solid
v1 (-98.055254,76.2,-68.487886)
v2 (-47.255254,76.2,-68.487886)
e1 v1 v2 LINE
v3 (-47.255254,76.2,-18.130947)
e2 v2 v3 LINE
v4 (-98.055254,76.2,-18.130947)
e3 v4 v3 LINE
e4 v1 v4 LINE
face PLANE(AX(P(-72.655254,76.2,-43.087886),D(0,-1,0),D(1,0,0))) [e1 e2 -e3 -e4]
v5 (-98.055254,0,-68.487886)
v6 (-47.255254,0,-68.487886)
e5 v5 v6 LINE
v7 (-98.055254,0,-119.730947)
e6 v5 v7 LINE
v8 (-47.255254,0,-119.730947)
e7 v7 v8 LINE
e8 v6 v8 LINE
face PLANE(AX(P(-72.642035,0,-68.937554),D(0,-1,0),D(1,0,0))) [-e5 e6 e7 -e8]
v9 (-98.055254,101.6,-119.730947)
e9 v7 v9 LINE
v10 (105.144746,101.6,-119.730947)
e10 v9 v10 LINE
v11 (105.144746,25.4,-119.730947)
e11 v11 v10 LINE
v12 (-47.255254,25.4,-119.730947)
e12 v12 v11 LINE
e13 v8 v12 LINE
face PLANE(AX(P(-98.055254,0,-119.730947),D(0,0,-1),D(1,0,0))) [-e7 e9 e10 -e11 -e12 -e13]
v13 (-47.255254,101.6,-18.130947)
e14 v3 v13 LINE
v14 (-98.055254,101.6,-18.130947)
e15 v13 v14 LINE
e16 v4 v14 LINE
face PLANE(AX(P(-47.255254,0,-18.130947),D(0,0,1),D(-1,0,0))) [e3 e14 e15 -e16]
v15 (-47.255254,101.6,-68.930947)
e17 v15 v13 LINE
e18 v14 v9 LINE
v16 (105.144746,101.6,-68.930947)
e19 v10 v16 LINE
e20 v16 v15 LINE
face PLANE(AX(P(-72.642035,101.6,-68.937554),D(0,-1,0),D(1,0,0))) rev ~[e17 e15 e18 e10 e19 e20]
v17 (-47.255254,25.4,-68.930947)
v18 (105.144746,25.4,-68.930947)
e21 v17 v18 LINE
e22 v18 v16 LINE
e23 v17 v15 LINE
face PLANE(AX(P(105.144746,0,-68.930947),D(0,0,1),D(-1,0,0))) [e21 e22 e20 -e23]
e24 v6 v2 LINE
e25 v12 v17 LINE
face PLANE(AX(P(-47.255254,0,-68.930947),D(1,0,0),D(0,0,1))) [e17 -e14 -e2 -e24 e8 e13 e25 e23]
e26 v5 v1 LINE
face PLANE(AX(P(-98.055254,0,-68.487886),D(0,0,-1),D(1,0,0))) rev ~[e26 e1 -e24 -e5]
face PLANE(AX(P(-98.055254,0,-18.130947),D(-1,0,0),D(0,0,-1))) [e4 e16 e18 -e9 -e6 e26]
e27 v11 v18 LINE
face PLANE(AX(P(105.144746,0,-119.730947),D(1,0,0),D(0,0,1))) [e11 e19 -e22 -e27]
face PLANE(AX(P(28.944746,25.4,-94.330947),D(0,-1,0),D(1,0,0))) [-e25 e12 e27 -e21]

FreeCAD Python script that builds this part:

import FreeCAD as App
import Part
import Sketcher
Q = App.Units.Quantity


def add_polygon(sketch, points):
    """Adds a closed chain of lines whose ends are joined by coincident constraints."""
    first, n = sketch.GeometryCount, len(points)
    for a, b in zip(points, points[1:] + points[:1]):
        sketch.addGeometry(Part.LineSegment(App.Vector(*a, 0), App.Vector(*b, 0)), False)
    for i in range(n):
        sketch.addConstraint(Sketcher.Constraint("Coincident", first + i, 2, first + (i + 1) % n, 1))

doc = App.newDocument("Part")
params = doc.addObject("Spreadsheet::Sheet", "Params")
for row, (alias, value) in enumerate([
    ("sketch1_width", "2 in"),
    ("sketch1_width2", "8 in"),
    ("pad1_length", "4 in"),
    ("sketch2_width", "6 in"),
    ("sketch2_height", "2 in"),
    ("pocket1_length", "1 in"),
    ("sketch3_width", "2 in"),
    ("pocket2_length", "3 in"),
], start=1):
    params.set(f"A{row}", alias)
    params.set(f"B{row}", "=" + value)
    params.setAlias(f"B{row}", alias)

body = doc.addObject("PartDesign::Body", "Body")

sketch1 = doc.addObject("Sketcher::SketchObject", "Sketch")
body.addObject(sketch1)
sketch1.AttachmentSupport = (doc.XZ_Plane, [""])
sketch1.MapMode = "FlatFace"
add_polygon(sketch1, [(-47, -18), (-98, -18), (-98, -120), (105, -120), (105, -69), (-47, -69)])
sketch1.addConstraint([
    Sketcher.Constraint("Horizontal", 0),
    Sketcher.Constraint("Vertical", 1),
    Sketcher.Constraint("Horizontal", 2),
    Sketcher.Constraint("Vertical", 3),
    Sketcher.Constraint("Horizontal", 4),
    Sketcher.Constraint("Vertical", 5),
    Sketcher.Constraint("Equal", 0, 3),
    Sketcher.Constraint("Equal", 3, 5),
    Sketcher.Constraint("DistanceX", 0, 2, 0, 1, Q("2 in")),
    Sketcher.Constraint("DistanceX", 2, 1, 2, 2, Q("8 in")),
    Sketcher.Constraint("DistanceX", 0, 2, -1, 1, 98.055254),
    Sketcher.Constraint("DistanceY", 0, 2, -1, 1, 18.130947),
])
sketch1.setExpression("Constraints[14]", "Params.sketch1_width")
sketch1.setExpression("Constraints[15]", "Params.sketch1_width2")
pad1 = doc.addObject("PartDesign::Pad", "Pad")
body.addObject(pad1)
pad1.Profile = sketch1
pad1.setExpression("Length", "Params.pad1_length")
pad1.Reversed = True

sketch2 = doc.addObject("Sketcher::SketchObject", "Sketch001")
body.addObject(sketch2)
sketch2.AttachmentSupport = (doc.XZ_Plane, [""])
sketch2.MapMode = "FlatFace"
add_polygon(sketch2, [(-47, -69), (-47, -120), (105, -120), (105, -69)])
sketch2.addConstraint([
    Sketcher.Constraint("Vertical", 0),
    Sketcher.Constraint("Horizontal", 1),
    Sketcher.Constraint("Vertical", 2),
    Sketcher.Constraint("Horizontal", 3),
    Sketcher.Constraint("DistanceX", 1, 1, 1, 2, Q("6 in")),
    Sketcher.Constraint("DistanceY", 0, 2, 0, 1, Q("2 in")),
    Sketcher.Constraint("DistanceX", 0, 2, -1, 1, 47.255254),
    Sketcher.Constraint("DistanceY", 0, 2, -1, 1, 119.730947),
])
sketch2.setExpression("Constraints[8]", "Params.sketch2_width")
sketch2.setExpression("Constraints[9]", "Params.sketch2_height")
pocket1 = doc.addObject("PartDesign::Pocket", "Pocket")
body.addObject(pocket1)
pocket1.Profile = sketch2
pocket1.setExpression("Length", "Params.pocket1_length")

sketch3 = doc.addObject("Sketcher::SketchObject", "Sketch002")
body.addObject(sketch3)
sketch3.AttachmentSupport = (doc.XZ_Plane, [""])
sketch3.MapMode = "FlatFace"
add_polygon(sketch3, [(-98, -18), (-98, -68), (-47, -68), (-47, -18)])
sketch3.addConstraint([
    Sketcher.Constraint("Vertical", 0),
    Sketcher.Constraint("Horizontal", 1),
    Sketcher.Constraint("Vertical", 2),
    Sketcher.Constraint("Horizontal", 3),
    Sketcher.Constraint("Equal", 3, 0),
    Sketcher.Constraint("DistanceX", 1, 1, 1, 2, Q("2 in")),
    Sketcher.Constraint("DistanceX", 0, 2, -1, 1, 98.055254),
    Sketcher.Constraint("DistanceY", 0, 2, -1, 1, 68.487886),
])
sketch3.setExpression("Constraints[9]", "Params.sketch3_width")
pocket2 = doc.addObject("PartDesign::Pocket", "Pocket001")
body.addObject(pocket2)
pocket2.Profile = sketch3
pocket2.setExpression("Length", "Params.pocket2_length")

doc.recompute()
